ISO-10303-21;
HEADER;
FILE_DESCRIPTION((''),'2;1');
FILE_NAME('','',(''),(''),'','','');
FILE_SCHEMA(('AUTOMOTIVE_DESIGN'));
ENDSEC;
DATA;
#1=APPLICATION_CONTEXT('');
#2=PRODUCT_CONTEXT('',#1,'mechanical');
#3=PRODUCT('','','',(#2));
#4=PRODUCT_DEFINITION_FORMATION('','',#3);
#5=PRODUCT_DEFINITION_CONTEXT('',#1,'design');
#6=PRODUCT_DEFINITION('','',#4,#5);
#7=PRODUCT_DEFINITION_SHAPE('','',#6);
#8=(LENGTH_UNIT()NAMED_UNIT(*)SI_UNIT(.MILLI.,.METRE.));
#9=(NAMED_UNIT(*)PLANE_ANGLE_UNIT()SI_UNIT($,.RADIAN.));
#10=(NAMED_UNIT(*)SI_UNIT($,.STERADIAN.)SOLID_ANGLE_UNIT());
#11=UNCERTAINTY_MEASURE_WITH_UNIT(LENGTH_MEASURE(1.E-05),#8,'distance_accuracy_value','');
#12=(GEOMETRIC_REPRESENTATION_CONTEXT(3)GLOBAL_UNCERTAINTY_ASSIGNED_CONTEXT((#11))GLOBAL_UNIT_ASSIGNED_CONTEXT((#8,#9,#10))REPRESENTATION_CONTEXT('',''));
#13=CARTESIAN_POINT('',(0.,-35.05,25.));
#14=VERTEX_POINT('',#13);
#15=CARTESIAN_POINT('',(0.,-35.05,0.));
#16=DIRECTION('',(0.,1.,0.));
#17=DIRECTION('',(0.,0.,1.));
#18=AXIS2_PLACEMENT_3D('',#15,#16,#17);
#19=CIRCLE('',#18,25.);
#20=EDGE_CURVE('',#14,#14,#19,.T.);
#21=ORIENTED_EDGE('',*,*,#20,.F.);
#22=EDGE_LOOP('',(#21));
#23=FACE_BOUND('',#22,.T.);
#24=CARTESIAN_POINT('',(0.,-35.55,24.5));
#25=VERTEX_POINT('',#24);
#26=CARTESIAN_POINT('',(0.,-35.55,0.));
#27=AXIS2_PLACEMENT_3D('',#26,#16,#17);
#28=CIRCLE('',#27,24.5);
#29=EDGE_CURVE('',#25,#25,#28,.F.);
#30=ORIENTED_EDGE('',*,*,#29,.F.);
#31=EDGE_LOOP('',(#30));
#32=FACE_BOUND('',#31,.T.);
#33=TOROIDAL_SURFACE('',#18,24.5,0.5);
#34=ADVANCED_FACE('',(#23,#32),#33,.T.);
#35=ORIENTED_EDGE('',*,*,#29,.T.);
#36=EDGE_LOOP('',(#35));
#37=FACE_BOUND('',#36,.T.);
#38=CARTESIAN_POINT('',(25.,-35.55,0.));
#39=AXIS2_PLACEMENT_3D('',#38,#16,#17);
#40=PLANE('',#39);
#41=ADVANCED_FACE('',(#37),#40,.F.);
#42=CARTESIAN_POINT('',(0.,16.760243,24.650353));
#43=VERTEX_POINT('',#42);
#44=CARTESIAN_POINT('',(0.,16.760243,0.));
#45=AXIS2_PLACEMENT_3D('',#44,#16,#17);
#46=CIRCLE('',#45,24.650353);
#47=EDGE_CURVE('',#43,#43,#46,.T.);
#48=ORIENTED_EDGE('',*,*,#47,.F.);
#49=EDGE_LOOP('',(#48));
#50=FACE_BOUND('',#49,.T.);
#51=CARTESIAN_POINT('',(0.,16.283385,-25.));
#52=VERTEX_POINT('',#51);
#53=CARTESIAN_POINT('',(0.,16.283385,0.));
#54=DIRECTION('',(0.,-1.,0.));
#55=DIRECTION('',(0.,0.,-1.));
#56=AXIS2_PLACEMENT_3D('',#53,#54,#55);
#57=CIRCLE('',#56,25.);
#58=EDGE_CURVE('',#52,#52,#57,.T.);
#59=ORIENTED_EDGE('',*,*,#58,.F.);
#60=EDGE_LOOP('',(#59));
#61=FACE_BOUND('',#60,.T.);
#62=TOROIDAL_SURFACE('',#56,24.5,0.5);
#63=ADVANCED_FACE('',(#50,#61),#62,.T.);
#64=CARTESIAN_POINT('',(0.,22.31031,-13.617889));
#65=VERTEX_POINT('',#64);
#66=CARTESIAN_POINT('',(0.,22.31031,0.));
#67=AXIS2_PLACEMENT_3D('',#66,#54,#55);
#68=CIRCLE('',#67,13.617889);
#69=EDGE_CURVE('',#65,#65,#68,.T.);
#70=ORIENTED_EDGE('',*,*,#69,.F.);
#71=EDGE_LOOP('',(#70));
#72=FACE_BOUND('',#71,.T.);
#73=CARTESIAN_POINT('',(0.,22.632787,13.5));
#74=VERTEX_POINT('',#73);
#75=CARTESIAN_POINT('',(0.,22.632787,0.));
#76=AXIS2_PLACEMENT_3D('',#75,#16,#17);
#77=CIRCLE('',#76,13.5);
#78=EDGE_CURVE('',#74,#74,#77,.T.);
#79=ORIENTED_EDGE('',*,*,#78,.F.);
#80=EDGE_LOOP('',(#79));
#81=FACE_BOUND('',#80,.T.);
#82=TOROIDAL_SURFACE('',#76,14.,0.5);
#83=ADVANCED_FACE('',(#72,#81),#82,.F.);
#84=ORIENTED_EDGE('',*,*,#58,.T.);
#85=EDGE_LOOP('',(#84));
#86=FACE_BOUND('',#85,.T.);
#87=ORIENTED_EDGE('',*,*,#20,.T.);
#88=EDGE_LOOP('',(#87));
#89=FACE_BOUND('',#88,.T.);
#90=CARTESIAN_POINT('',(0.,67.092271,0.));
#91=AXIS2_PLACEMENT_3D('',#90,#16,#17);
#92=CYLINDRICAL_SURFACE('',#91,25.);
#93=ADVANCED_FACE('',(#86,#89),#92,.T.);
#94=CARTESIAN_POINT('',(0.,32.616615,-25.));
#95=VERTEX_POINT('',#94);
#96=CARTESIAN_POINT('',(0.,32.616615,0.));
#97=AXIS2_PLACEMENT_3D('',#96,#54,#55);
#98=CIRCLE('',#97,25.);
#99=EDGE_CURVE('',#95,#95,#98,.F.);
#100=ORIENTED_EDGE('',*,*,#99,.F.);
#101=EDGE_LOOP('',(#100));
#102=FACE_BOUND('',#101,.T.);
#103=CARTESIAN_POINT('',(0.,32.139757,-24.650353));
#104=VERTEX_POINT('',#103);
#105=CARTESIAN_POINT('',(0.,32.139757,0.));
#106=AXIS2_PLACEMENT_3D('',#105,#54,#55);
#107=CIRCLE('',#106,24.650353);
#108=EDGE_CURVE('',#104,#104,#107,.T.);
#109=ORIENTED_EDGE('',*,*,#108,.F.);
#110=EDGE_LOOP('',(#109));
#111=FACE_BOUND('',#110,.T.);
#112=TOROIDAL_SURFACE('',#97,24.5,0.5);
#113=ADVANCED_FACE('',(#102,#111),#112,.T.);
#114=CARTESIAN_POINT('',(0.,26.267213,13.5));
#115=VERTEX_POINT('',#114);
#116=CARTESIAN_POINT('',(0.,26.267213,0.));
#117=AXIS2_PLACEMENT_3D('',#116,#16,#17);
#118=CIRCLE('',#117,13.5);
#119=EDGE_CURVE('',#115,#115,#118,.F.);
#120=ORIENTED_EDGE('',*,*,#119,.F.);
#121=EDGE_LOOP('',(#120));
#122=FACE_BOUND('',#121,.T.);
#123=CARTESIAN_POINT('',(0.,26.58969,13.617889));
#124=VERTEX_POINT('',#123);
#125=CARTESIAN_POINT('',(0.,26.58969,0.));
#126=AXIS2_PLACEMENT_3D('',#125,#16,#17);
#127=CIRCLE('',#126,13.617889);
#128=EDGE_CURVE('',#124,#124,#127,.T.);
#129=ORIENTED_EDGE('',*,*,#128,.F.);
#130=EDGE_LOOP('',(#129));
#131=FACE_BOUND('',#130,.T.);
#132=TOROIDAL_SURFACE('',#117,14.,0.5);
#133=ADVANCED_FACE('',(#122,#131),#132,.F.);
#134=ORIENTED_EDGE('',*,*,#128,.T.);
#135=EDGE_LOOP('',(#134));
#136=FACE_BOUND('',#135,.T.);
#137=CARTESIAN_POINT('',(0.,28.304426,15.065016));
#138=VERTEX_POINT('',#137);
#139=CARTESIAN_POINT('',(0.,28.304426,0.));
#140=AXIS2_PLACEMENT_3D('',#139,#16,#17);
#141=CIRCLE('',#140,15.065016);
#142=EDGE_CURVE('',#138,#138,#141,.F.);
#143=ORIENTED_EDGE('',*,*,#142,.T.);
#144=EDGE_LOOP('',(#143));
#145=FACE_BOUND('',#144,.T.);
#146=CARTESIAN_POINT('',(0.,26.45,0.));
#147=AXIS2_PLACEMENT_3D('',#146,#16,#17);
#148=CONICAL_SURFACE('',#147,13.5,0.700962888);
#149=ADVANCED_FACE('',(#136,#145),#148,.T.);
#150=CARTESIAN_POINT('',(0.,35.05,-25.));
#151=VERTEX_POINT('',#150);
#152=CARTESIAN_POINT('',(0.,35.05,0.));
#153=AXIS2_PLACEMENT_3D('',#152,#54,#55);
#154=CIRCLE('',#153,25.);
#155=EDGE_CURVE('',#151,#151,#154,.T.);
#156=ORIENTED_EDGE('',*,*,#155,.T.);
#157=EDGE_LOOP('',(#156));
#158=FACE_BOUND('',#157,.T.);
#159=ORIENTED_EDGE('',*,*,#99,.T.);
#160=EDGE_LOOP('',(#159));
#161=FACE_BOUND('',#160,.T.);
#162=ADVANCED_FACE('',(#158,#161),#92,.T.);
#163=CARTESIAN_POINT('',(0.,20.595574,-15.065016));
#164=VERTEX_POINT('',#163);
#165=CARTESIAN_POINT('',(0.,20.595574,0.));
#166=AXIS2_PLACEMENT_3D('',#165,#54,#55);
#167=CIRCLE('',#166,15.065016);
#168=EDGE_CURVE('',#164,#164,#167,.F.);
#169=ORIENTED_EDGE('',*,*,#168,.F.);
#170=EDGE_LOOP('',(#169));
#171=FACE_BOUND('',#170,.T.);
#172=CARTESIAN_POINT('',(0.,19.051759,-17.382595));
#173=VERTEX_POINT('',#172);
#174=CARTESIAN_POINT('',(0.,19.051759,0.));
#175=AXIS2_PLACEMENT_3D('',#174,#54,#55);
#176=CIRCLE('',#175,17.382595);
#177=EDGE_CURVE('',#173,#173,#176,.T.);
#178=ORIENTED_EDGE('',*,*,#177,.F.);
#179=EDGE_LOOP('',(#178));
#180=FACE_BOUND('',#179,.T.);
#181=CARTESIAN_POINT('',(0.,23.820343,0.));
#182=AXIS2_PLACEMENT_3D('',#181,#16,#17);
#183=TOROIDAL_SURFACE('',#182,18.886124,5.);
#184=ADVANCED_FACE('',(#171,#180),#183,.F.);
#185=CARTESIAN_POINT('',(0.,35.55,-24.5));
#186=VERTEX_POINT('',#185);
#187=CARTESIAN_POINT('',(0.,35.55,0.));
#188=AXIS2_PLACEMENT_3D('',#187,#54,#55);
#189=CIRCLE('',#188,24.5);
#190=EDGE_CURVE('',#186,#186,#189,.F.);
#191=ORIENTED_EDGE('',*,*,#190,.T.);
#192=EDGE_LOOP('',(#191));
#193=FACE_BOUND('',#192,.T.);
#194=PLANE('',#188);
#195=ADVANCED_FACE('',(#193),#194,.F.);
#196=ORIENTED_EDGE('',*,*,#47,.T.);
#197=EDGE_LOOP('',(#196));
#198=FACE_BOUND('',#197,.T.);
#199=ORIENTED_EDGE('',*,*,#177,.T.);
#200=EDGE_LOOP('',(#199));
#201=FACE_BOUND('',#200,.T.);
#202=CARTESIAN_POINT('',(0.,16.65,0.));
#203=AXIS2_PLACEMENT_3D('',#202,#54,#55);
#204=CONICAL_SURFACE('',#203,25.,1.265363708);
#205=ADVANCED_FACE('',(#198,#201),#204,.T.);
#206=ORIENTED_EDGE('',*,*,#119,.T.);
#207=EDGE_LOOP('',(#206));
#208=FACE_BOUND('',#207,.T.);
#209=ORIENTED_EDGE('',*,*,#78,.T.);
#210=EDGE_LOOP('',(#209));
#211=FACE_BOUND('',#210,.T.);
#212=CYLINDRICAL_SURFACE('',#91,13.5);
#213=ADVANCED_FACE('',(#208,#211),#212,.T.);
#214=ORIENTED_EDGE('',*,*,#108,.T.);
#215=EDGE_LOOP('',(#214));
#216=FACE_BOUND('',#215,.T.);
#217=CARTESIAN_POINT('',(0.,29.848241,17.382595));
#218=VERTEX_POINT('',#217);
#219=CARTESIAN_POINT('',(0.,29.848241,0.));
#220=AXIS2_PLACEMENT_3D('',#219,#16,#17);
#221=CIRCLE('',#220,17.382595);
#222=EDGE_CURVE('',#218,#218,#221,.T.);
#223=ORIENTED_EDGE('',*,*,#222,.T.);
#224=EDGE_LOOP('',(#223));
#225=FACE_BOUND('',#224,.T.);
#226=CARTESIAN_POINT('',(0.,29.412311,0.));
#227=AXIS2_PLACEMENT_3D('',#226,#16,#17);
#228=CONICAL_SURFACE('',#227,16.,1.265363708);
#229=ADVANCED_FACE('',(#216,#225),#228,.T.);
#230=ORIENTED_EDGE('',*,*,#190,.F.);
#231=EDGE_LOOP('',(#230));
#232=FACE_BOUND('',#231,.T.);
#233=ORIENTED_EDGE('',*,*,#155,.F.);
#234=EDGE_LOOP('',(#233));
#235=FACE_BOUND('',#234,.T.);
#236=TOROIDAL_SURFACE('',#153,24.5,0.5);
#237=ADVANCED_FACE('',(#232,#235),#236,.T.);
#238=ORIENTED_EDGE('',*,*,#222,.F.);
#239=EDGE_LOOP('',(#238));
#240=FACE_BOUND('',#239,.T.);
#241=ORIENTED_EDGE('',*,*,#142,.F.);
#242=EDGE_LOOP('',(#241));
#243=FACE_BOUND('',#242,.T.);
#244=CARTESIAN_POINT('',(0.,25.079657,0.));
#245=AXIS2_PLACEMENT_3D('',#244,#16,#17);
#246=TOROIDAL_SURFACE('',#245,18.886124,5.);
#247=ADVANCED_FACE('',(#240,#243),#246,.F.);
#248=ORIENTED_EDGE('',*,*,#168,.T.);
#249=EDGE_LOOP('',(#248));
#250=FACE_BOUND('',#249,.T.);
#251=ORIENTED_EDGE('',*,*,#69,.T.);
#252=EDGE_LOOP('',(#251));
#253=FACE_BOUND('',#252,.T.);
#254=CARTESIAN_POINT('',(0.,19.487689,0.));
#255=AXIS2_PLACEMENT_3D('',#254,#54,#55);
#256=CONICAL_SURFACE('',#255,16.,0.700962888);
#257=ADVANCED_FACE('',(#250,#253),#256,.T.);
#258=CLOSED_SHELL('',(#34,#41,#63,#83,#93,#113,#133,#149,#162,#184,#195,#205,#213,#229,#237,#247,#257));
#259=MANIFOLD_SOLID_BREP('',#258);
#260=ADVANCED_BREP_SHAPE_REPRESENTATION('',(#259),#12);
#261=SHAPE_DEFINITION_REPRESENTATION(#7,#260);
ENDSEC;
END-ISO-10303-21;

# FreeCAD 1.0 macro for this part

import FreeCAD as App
import Part
import Sketcher
from FreeCAD import Vector
Q = App.Units.Quantity


def edges_at(feature, points):
    """Names of the edges that pass closest to the given points."""
    edges = feature.Shape.Edges
    near = lambda p: min(range(len(edges)), key=lambda i: edges[i].distToShape(Part.Vertex(*p))[0])
    return sorted({f"Edge{near(p) + 1}" for p in points})

doc = App.newDocument("Part")
body = doc.addObject("PartDesign::Body", "Body")

sketch1 = body.newObject("Sketcher::SketchObject", "Sketch")
sketch1.AttachmentSupport = (doc.getObject("XY_Plane"), [""])
sketch1.MapMode = "FlatFace"
sketch1.addGeometry(Part.LineSegment(Vector(16, 29.412311, 0), Vector(25, 32.25, 0)), False)
sketch1.addGeometry(Part.LineSegment(Vector(25, 32.25, 0), Vector(25, 35.55, 0)), False)
sketch1.addGeometry(Part.LineSegment(Vector(25, 35.55, 0), Vector(0, 35.55, 0)), False)
sketch1.addGeometry(Part.LineSegment(Vector(0, 35.55, 0), Vector(0, -35.55, 0)), False)
sketch1.addGeometry(Part.LineSegment(Vector(0, -35.55, 0), Vector(25, -35.55, 0)), False)
sketch1.addGeometry(Part.LineSegment(Vector(25, -35.55, 0), Vector(25, 16.65, 0)), False)
sketch1.addGeometry(Part.LineSegment(Vector(25, 16.65, 0), Vector(16, 19.487689, 0)), False)
sketch1.addGeometry(Part.LineSegment(Vector(16, 19.487689, 0), Vector(13.5, 22.45, 0)), False)
sketch1.addGeometry(Part.LineSegment(Vector(13.5, 22.45, 0), Vector(13.5, 26.45, 0)), False)
sketch1.addGeometry(Part.LineSegment(Vector(13.5, 26.45, 0), Vector(16, 29.412311, 0)), False)
sketch1.addConstraint(Sketcher.Constraint("Coincident", 0, 2, 1, 1))
sketch1.addConstraint(Sketcher.Constraint("Coincident", 1, 2, 2, 1))
sketch1.addConstraint(Sketcher.Constraint("Coincident", 2, 2, 3, 1))
sketch1.addConstraint(Sketcher.Constraint("Coincident", 3, 2, 4, 1))
sketch1.addConstraint(Sketcher.Constraint("Coincident", 4, 2, 5, 1))
sketch1.addConstraint(Sketcher.Constraint("Coincident", 5, 2, 6, 1))
sketch1.addConstraint(Sketcher.Constraint("Coincident", 6, 2, 7, 1))
sketch1.addConstraint(Sketcher.Constraint("Coincident", 7, 2, 8, 1))
sketch1.addConstraint(Sketcher.Constraint("Coincident", 8, 2, 9, 1))
sketch1.addConstraint(Sketcher.Constraint("Coincident", 9, 2, 0, 1))
sketch1.addConstraint(Sketcher.Constraint("Vertical", 1))
sketch1.addConstraint(Sketcher.Constraint("Horizontal", 2))
sketch1.addConstraint(Sketcher.Constraint("Vertical", 3))
sketch1.addConstraint(Sketcher.Constraint("Horizontal", 4))
sketch1.addConstraint(Sketcher.Constraint("Vertical", 5))
sketch1.addConstraint(Sketcher.Constraint("Vertical", 8))
sketch1.addConstraint(Sketcher.Constraint("Symmetric", 2, 2, 3, 2, -1, 1))
sketch1.addConstraint(Sketcher.Constraint("Vertical", 1, 2, 4, 2))
sketch1.addConstraint(Sketcher.Constraint("Vertical", 6, 2, 9, 2))
sketch1.addConstraint(Sketcher.Constraint("Equal", 0, 6))
sketch1.addConstraint(Sketcher.Constraint("Equal", 7, 9))
sketch1.addConstraint(Sketcher.Constraint("DistanceX", 2, 2, 2, 1, Q("25 mm")))
sketch1.addConstraint(Sketcher.Constraint("DistanceY", 8, 1, 8, 2, Q("4 mm")))
sketch1.addConstraint(Sketcher.Constraint("DistanceY", 1, 1, 1, 2, Q("3.3 mm")))
sketch1.addConstraint(Sketcher.Constraint("DistanceY", 3, 2, 3, 1, Q("71.1 mm")))
sketch1.addConstraint(Sketcher.Constraint("DistanceY", 5, 1, 5, 2, Q("52.2 mm")))
sketch1.addConstraint(Sketcher.Constraint("DistanceX", -1, 1, 6, 2, Q("16 mm")))
sketch1.addConstraint(Sketcher.Constraint("Angle", 0, Q("17.5 deg")))
sketch1.addConstraint(Sketcher.Constraint("DistanceX", -1, 1, 7, 2, Q("13.5 mm")))
revolution = body.newObject("PartDesign::Revolution", "Revolution")
revolution.Profile = sketch1
revolution.ReferenceAxis = (sketch1, ["V_Axis"])
revolution.Angle = 360
doc.recompute()

fillet = body.newObject("PartDesign::Fillet", "Fillet")
fillet.Base = (revolution, edges_at(revolution, [(0, 19.488, -16), (0, 29.412, -16)]))
fillet.Radius = 5
doc.recompute()

fillet2 = body.newObject("PartDesign::Fillet", "Fillet001")
fillet2.Base = (fillet, edges_at(fillet, [
    (0, 16.65, -25),
    (0, -35.55, -25),
    (0, 35.55, -25),
    (0, 32.25, -25),
    (0, 26.45, -13.5),
    (0, 22.45, -13.5),
]))
fillet2.Radius = 0.5

doc.recompute()
